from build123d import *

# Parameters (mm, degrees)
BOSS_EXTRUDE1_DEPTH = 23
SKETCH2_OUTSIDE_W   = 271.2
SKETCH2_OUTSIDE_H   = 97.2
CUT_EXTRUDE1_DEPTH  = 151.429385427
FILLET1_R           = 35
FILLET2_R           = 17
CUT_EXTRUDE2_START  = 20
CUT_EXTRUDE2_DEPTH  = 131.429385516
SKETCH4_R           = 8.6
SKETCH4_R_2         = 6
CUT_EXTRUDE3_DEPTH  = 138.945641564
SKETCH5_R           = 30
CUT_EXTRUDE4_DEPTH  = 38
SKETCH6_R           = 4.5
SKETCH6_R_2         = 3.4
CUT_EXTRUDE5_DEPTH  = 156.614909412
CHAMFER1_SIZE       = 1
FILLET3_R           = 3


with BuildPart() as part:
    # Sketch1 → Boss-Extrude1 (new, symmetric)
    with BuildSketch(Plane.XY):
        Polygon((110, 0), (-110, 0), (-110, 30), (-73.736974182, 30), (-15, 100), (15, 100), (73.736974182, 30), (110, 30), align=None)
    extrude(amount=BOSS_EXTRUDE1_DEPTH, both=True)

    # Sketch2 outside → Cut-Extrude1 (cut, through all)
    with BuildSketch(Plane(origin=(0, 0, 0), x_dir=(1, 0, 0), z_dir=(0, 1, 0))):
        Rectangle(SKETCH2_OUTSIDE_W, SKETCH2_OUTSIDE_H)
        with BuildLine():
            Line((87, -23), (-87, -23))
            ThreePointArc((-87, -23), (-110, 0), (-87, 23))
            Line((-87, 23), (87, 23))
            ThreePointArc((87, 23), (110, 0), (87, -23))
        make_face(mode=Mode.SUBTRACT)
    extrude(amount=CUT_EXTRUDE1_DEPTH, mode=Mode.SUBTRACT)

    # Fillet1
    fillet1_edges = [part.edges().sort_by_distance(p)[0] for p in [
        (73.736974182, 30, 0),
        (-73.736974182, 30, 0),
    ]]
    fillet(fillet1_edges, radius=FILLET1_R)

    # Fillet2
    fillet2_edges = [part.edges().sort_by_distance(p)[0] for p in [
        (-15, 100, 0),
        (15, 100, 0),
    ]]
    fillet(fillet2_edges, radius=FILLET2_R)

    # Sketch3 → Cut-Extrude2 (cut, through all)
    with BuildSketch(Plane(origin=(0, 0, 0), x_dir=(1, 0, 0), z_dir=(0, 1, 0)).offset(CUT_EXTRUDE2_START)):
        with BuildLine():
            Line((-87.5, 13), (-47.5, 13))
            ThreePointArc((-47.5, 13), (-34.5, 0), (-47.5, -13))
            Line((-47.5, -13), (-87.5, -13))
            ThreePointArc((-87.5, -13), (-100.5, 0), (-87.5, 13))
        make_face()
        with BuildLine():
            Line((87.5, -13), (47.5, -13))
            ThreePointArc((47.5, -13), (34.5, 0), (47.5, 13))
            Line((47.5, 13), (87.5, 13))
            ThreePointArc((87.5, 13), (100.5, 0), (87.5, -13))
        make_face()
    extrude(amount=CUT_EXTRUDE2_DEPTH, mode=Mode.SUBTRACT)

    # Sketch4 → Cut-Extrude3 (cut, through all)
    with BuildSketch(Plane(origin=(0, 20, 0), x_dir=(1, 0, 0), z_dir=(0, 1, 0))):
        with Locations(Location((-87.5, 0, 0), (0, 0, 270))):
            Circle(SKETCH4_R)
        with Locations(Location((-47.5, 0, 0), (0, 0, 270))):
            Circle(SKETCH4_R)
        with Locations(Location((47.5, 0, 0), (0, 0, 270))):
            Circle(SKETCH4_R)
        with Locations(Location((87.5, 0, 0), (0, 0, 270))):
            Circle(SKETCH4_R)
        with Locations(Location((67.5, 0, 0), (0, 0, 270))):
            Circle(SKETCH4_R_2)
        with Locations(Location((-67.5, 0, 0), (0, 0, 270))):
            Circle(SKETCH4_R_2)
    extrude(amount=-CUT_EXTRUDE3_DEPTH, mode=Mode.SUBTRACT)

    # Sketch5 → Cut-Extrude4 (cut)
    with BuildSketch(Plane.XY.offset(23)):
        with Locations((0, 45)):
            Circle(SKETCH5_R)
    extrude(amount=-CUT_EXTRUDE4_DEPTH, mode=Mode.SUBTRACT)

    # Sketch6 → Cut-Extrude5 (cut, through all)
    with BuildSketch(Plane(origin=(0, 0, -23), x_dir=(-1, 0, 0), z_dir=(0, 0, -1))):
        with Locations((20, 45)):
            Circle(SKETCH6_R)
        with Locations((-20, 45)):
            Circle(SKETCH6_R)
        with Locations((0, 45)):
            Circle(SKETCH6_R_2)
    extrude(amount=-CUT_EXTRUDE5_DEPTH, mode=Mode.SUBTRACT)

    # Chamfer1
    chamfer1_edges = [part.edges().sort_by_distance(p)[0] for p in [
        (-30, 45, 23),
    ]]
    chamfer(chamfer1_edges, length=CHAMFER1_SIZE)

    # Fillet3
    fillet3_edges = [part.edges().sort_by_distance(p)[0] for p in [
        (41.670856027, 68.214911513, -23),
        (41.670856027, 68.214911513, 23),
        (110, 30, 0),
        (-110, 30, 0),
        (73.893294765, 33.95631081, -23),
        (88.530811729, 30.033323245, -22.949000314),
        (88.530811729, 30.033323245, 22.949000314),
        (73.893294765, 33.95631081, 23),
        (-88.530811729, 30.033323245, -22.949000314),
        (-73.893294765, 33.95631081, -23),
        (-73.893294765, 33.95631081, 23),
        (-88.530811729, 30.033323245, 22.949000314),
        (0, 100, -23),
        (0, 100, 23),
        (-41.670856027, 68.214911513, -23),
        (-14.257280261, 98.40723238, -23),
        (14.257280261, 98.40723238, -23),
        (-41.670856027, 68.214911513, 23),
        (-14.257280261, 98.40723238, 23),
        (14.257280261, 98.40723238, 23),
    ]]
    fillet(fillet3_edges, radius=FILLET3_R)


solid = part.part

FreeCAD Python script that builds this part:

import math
import FreeCAD as App
import Part
import Sketcher
Q = App.Units.Quantity


def edges_at(feature, points):
    """Names of the edges that pass closest to the given points."""
    edges = feature.Shape.Edges
    near = lambda p: min(range(len(edges)), key=lambda i: edges[i].distToShape(Part.Vertex(*p))[0])
    return sorted({f"Edge{near(p) + 1}" for p in points})


def add_polygon(sketch, points):
    """Adds a closed chain of lines whose ends are joined by coincident constraints."""
    first, n = sketch.GeometryCount, len(points)
    for a, b in zip(points, points[1:] + points[:1]):
        sketch.addGeometry(Part.LineSegment(App.Vector(*a, 0), App.Vector(*b, 0)), False)
    for i in range(n):
        sketch.addConstraint(Sketcher.Constraint("Coincident", first + i, 2, first + (i + 1) % n, 1))

doc = App.newDocument("Part")
params = doc.addObject("Spreadsheet::Sheet", "Params")
for row, (alias, value) in enumerate([
    ("sketch1_width", "220 mm"),
    ("sketch1_width2", "30 mm"),
    ("pad1_length", "46 mm"),
    ("sketch2_radius", "23 mm"),
    ("sketch2_width", "174 mm"),
    ("sketch2_width2", "271.2 mm"),
    ("sketch2_height", "97.2 mm"),
    ("fillet_radius", "35 mm"),
    ("fillet2_radius", "17 mm"),
    ("sketch3_radius", "13 mm"),
    ("sketch3_width", "40 mm"),
    ("sketch4_diameter", "12 mm"),
    ("sketch4_diameter2", "17.2 mm"),
    ("sketch5_diameter", "60 mm"),
    ("pocket4_length", "38 mm"),
    ("sketch6_diameter", "9 mm"),
    ("sketch6_diameter2", "6.8 mm"),
    ("chamfer_size", "1 mm"),
    ("fillet3_radius", "3 mm"),
], start=1):
    params.set(f"A{row}", alias)
    params.set(f"B{row}", "=" + value)
    params.setAlias(f"B{row}", alias)

body = doc.addObject("PartDesign::Body", "Body")

# Sketch on XY plane
sketch1 = body.newObject("Sketcher::SketchObject", "Sketch")
sketch1.AttachmentSupport = (doc.getObject("XY_Plane"), [""])
sketch1.MapMode = "FlatFace"
add_polygon(sketch1, [(-110, 0), (110, 0), (110, 30), (74, 30), (15, 100), (-15, 100), (-74, 30), (-110, 30)])  # lines 0-7
sketch1.addConstraint([
    Sketcher.Constraint("Horizontal", 0),
    Sketcher.Constraint("Vertical", 1),
    Sketcher.Constraint("Horizontal", 2),
    Sketcher.Constraint("Horizontal", 4),
    Sketcher.Constraint("Horizontal", 6),
    Sketcher.Constraint("Vertical", 7),
    Sketcher.Constraint("Symmetric", 0, 2, 7, 2, -1, 1),
    Sketcher.Constraint("Symmetric", 2, 2, 5, 2, -2),
    Sketcher.Constraint("Equal", 4, 1),
    Sketcher.Constraint("Equal", 3, 5),
    Sketcher.Constraint("DistanceX", 0, 1, 0, 2, 220.0),
    Sketcher.Constraint("DistanceX", 4, 2, 4, 1, 30.0),
    Sketcher.Constraint("Angle", 3, Q("130 deg")),
    Sketcher.Constraint("DistanceY", -1, 1, 3, 2, 100.0),
])
sketch1.setExpression("Constraints[18]", "Params.sketch1_width")
sketch1.setExpression("Constraints[19]", "Params.sketch1_width2")
pad1 = body.newObject("PartDesign::Pad", "Pad")
pad1.Profile = sketch1
pad1.setExpression("Length", "Params.pad1_length")
pad1.Midplane = True

# Sketch on XZ plane
sketch2 = body.newObject("Sketcher::SketchObject", "Sketch001")
sketch2.AttachmentSupport = (doc.getObject("XZ_Plane"), [""])
sketch2.MapMode = "FlatFace"
add_polygon(sketch2, [(-136, -49), (-136, 49), (136, 49), (136, -49)])  # lines 0-3
sketch2.addGeometry(Part.ArcOfCircle(Part.Circle(App.Vector(87, 0, 0), App.Vector(0, 0, 1), 23), math.radians(-90), math.radians(90)), False)  # 4
sketch2.addGeometry(Part.LineSegment(App.Vector(87, 23, 0), App.Vector(-87, 23, 0)), False)  # 5
sketch2.addGeometry(Part.ArcOfCircle(Part.Circle(App.Vector(-87, 0, 0), App.Vector(0, 0, 1), 23), math.radians(90), math.radians(270)), False)  # 6
sketch2.addGeometry(Part.LineSegment(App.Vector(-87, -23, 0), App.Vector(87, -23, 0)), False)  # 7
sketch2.addConstraint([
    Sketcher.Constraint("Tangent", 4, 2, 5, 1),
    Sketcher.Constraint("Tangent", 5, 2, 6, 1),
    Sketcher.Constraint("Tangent", 6, 2, 7, 1),
    Sketcher.Constraint("Tangent", 7, 2, 4, 1),
    Sketcher.Constraint("Vertical", 0),
    Sketcher.Constraint("Horizontal", 1),
    Sketcher.Constraint("Vertical", 2),
    Sketcher.Constraint("Horizontal", 3),
    Sketcher.Constraint("Horizontal", 5),
    Sketcher.Constraint("Horizontal", 7),
    Sketcher.Constraint("Symmetric", 4, 3, 6, 3, -1, 1),
    Sketcher.Constraint("Symmetric", 0, 2, 2, 2, -1, 1),
    Sketcher.Constraint("Radius", 4, 23.0),
    Sketcher.Constraint("DistanceX", 5, 2, 5, 1, 174.0),
    Sketcher.Constraint("DistanceX", 1, 1, 1, 2, 271.2),
    Sketcher.Constraint("DistanceY", 0, 1, 0, 2, 97.2),
])
sketch2.setExpression("Constraints[16]", "Params.sketch2_radius")
sketch2.setExpression("Constraints[17]", "Params.sketch2_width")
sketch2.setExpression("Constraints[18]", "Params.sketch2_width2")
sketch2.setExpression("Constraints[19]", "Params.sketch2_height")
pocket1 = body.newObject("PartDesign::Pocket", "Pocket")
pocket1.Profile = sketch2
pocket1.Type = "ThroughAll"
doc.recompute()

fillet = body.newObject("PartDesign::Fillet", "Fillet")
fillet.Base = (pocket1, edges_at(pocket1, [(73.737, 30, 0), (-73.737, 30, 0)]))
fillet.setExpression("Radius", "Params.fillet_radius")
doc.recompute()

fillet2 = body.newObject("PartDesign::Fillet", "Fillet001")
fillet2.Base = (fillet, edges_at(fillet, [(-15, 100, 0), (15, 100, 0)]))
fillet2.setExpression("Radius", "Params.fillet2_radius")

# Sketch on XZ plane
sketch3 = body.newObject("Sketcher::SketchObject", "Sketch002")
sketch3.AttachmentSupport = (doc.getObject("XZ_Plane"), [""])
sketch3.MapMode = "FlatFace"
sketch3.AttachmentOffset = App.Placement(App.Vector(0, 0, -20), App.Rotation())
sketch3.addGeometry([
    Part.LineSegment(App.Vector(-48, -13, 0), App.Vector(-88, -13, 0)),  # 0
    Part.ArcOfCircle(Part.Circle(App.Vector(-88, 0, 0), App.Vector(0, 0, 1), 13), math.radians(90), math.radians(270)),  # 1
    Part.LineSegment(App.Vector(-88, 13, 0), App.Vector(-48, 13, 0)),  # 2
    Part.ArcOfCircle(Part.Circle(App.Vector(-48, 0, 0), App.Vector(0, 0, 1), 13), math.radians(-90), math.radians(90)),  # 3
    Part.LineSegment(App.Vector(48, 13, 0), App.Vector(88, 13, 0)),  # 4
    Part.ArcOfCircle(Part.Circle(App.Vector(88, 0, 0), App.Vector(0, 0, 1), 13), math.radians(-90), math.radians(90)),  # 5
    Part.LineSegment(App.Vector(88, -13, 0), App.Vector(48, -13, 0)),  # 6
    Part.ArcOfCircle(Part.Circle(App.Vector(48, 0, 0), App.Vector(0, 0, 1), 13), math.radians(90), math.radians(270)),  # 7
], False)
sketch3.addConstraint([
    Sketcher.Constraint("Tangent", 0, 2, 1, 2),
    Sketcher.Constraint("Tangent", 1, 1, 2, 1),
    Sketcher.Constraint("Tangent", 2, 2, 3, 2),
    Sketcher.Constraint("Tangent", 3, 1, 0, 1),
    Sketcher.Constraint("Tangent", 4, 2, 5, 2),
    Sketcher.Constraint("Tangent", 5, 1, 6, 1),
    Sketcher.Constraint("Tangent", 6, 2, 7, 2),
    Sketcher.Constraint("Tangent", 7, 1, 4, 1),
    Sketcher.Constraint("Horizontal", 0),
    Sketcher.Constraint("Horizontal", 2),
    Sketcher.Constraint("Horizontal", 4),
    Sketcher.Constraint("Horizontal", 6),
    Sketcher.Constraint("Equal", 3, 5),
    Sketcher.Constraint("Symmetric", 1, 3, 5, 3, -1, 1),
    Sketcher.Constraint("Symmetric", 3, 3, 7, 3, -2),
    Sketcher.Constraint("Radius", 1, 13.0),
    Sketcher.Constraint("DistanceX", 0, 2, 0, 1, 40.0),
    Sketcher.Constraint("DistanceX", 3, 3, 5, 3, 135.0),
])
sketch3.setExpression("Constraints[15]", "Params.sketch3_radius")
sketch3.setExpression("Constraints[16]", "Params.sketch3_width")
pocket2 = body.newObject("PartDesign::Pocket", "Pocket001")
pocket2.Profile = sketch3
pocket2.Type = "ThroughAll"

# Sketch on XZ plane
sketch4 = body.newObject("Sketcher::SketchObject", "Sketch003")
sketch4.AttachmentSupport = (doc.getObject("XZ_Plane"), [""])
sketch4.MapMode = "FlatFace"
sketch4.AttachmentOffset = App.Placement(App.Vector(0, 0, -20), App.Rotation())
sketch4.addGeometry([
    Part.Circle(App.Vector(-88, 0, 0), App.Vector(0, 0, 1), 9),  # 0
    Part.Circle(App.Vector(-48, 0, 0), App.Vector(0, 0, 1), 9),  # 1
    Part.Circle(App.Vector(48, 0, 0), App.Vector(0, 0, 1), 9),  # 2
    Part.Circle(App.Vector(88, 0, 0), App.Vector(0, 0, 1), 9),  # 3
    Part.Circle(App.Vector(68, 0, 0), App.Vector(0, 0, 1), 6),  # 4
    Part.Circle(App.Vector(-68, 0, 0), App.Vector(0, 0, 1), 6),  # 5
], False)
sketch4.addConstraint([
    Sketcher.Constraint("Equal", 0, 1),
    Sketcher.Constraint("Equal", 1, 2),
    Sketcher.Constraint("Equal", 2, 3),
    Sketcher.Constraint("Equal", 4, 5),
    Sketcher.Constraint("Symmetric", 1, 3, 2, 3, -1, 1),
    Sketcher.Constraint("Symmetric", 0, 3, 3, 3, -1, 1),
    Sketcher.Constraint("Symmetric", 4, 3, 5, 3, -1, 1),
    Sketcher.Constraint("PointOnObject", 0, 3, -1),
    Sketcher.Constraint("PointOnObject", 1, 3, -1),
    Sketcher.Constraint("PointOnObject", 4, 3, -1),
    Sketcher.Constraint("Diameter", 4, 12.0),
    Sketcher.Constraint("Diameter", 0, 17.2),
    Sketcher.Constraint("DistanceX", 0, 3, 1, 3, 40.0),
    Sketcher.Constraint("DistanceX", 1, 3, 2, 3, 95.0),
    Sketcher.Constraint("DistanceX", 2, 3, 4, 3, 20.0),
])
sketch4.setExpression("Constraints[10]", "Params.sketch4_diameter")
sketch4.setExpression("Constraints[11]", "Params.sketch4_diameter2")
pocket3 = body.newObject("PartDesign::Pocket", "Pocket002")
pocket3.Profile = sketch4
pocket3.Type = "ThroughAll"
pocket3.Reversed = True

# Sketch on XY plane
sketch5 = body.newObject("Sketcher::SketchObject", "Sketch004")
sketch5.AttachmentSupport = (doc.getObject("XY_Plane"), [""])
sketch5.MapMode = "FlatFace"
sketch5.AttachmentOffset = App.Placement(App.Vector(0, 0, 23), App.Rotation())
sketch5.addGeometry(Part.Circle(App.Vector(0, 45, 0), App.Vector(0, 0, 1), 30), False)
sketch5.addConstraint([
    Sketcher.Constraint("PointOnObject", 0, 3, -2),
    Sketcher.Constraint("Diameter", 0, 60.0),
    Sketcher.Constraint("DistanceY", -1, 1, 0, 3, 45.0),
])
sketch5.setExpression("Constraints[1]", "Params.sketch5_diameter")
pocket4 = body.newObject("PartDesign::Pocket", "Pocket003")
pocket4.Profile = sketch5
pocket4.setExpression("Length", "Params.pocket4_length")

# Sketch on XY plane
sketch6 = body.newObject("Sketcher::SketchObject", "Sketch005")
sketch6.AttachmentSupport = (doc.getObject("XY_Plane"), [""])
sketch6.MapMode = "FlatFace"
sketch6.AttachmentOffset = App.Placement(App.Vector(0, 0, -23), App.Rotation())
sketch6.addGeometry([
    Part.Circle(App.Vector(-20, 45, 0), App.Vector(0, 0, 1), 4.5),
    Part.Circle(App.Vector(20, 45, 0), App.Vector(0, 0, 1), 4.5),
    Part.Circle(App.Vector(0, 45, 0), App.Vector(0, 0, 1), 3.4),
], False)
sketch6.addConstraint([
    Sketcher.Constraint("Equal", 0, 1),
    Sketcher.Constraint("Symmetric", 0, 3, 1, 3, -2),
    Sketcher.Constraint("PointOnObject", 2, 3, -2),
    Sketcher.Constraint("Horizontal", 1, 3, 2, 3),
    Sketcher.Constraint("Diameter", 0, 9.0),
    Sketcher.Constraint("Diameter", 2, 6.8),
    Sketcher.Constraint("DistanceX", 0, 3, -1, 1, 20.0),
    Sketcher.Constraint("DistanceY", -1, 1, 0, 3, 45.0),
])
sketch6.setExpression("Constraints[4]", "Params.sketch6_diameter")
sketch6.setExpression("Constraints[5]", "Params.sketch6_diameter2")
pocket5 = body.newObject("PartDesign::Pocket", "Pocket004")
pocket5.Profile = sketch6
pocket5.Type = "ThroughAll"
pocket5.Reversed = True
doc.recompute()

chamfer = body.newObject("PartDesign::Chamfer", "Chamfer")
chamfer.Base = (pocket5, edges_at(pocket5, [(-30, 45, 23)]))
chamfer.setExpression("Size", "Params.chamfer_size")
doc.recompute()

fillet3 = body.newObject("PartDesign::Fillet", "Fillet002")
fillet3.Base = (chamfer, edges_at(chamfer, [
    (41.671, 68.215, -23),
    (41.671, 68.215, 23),
    (110, 30, 0),
    (-110, 30, 0),
    (73.893, 33.956, -23),
    (88.531, 30.033, -22.949),
    (88.531, 30.033, 22.949),
    (73.893, 33.956, 23),
    (-88.531, 30.033, -22.949),
    (-73.893, 33.956, -23),
    (-73.893, 33.956, 23),
    (-88.531, 30.033, 22.949),
    (0, 100, -23),
    (0, 100, 23),
    (-41.671, 68.215, -23),
    (-14.257, 98.407, -23),
    (14.257, 98.407, -23),
    (-41.671, 68.215, 23),
    (-14.257, 98.407, 23),
    (14.257, 98.407, 23),
]))
fillet3.setExpression("Radius", "Params.fillet3_radius")

doc.recompute()
